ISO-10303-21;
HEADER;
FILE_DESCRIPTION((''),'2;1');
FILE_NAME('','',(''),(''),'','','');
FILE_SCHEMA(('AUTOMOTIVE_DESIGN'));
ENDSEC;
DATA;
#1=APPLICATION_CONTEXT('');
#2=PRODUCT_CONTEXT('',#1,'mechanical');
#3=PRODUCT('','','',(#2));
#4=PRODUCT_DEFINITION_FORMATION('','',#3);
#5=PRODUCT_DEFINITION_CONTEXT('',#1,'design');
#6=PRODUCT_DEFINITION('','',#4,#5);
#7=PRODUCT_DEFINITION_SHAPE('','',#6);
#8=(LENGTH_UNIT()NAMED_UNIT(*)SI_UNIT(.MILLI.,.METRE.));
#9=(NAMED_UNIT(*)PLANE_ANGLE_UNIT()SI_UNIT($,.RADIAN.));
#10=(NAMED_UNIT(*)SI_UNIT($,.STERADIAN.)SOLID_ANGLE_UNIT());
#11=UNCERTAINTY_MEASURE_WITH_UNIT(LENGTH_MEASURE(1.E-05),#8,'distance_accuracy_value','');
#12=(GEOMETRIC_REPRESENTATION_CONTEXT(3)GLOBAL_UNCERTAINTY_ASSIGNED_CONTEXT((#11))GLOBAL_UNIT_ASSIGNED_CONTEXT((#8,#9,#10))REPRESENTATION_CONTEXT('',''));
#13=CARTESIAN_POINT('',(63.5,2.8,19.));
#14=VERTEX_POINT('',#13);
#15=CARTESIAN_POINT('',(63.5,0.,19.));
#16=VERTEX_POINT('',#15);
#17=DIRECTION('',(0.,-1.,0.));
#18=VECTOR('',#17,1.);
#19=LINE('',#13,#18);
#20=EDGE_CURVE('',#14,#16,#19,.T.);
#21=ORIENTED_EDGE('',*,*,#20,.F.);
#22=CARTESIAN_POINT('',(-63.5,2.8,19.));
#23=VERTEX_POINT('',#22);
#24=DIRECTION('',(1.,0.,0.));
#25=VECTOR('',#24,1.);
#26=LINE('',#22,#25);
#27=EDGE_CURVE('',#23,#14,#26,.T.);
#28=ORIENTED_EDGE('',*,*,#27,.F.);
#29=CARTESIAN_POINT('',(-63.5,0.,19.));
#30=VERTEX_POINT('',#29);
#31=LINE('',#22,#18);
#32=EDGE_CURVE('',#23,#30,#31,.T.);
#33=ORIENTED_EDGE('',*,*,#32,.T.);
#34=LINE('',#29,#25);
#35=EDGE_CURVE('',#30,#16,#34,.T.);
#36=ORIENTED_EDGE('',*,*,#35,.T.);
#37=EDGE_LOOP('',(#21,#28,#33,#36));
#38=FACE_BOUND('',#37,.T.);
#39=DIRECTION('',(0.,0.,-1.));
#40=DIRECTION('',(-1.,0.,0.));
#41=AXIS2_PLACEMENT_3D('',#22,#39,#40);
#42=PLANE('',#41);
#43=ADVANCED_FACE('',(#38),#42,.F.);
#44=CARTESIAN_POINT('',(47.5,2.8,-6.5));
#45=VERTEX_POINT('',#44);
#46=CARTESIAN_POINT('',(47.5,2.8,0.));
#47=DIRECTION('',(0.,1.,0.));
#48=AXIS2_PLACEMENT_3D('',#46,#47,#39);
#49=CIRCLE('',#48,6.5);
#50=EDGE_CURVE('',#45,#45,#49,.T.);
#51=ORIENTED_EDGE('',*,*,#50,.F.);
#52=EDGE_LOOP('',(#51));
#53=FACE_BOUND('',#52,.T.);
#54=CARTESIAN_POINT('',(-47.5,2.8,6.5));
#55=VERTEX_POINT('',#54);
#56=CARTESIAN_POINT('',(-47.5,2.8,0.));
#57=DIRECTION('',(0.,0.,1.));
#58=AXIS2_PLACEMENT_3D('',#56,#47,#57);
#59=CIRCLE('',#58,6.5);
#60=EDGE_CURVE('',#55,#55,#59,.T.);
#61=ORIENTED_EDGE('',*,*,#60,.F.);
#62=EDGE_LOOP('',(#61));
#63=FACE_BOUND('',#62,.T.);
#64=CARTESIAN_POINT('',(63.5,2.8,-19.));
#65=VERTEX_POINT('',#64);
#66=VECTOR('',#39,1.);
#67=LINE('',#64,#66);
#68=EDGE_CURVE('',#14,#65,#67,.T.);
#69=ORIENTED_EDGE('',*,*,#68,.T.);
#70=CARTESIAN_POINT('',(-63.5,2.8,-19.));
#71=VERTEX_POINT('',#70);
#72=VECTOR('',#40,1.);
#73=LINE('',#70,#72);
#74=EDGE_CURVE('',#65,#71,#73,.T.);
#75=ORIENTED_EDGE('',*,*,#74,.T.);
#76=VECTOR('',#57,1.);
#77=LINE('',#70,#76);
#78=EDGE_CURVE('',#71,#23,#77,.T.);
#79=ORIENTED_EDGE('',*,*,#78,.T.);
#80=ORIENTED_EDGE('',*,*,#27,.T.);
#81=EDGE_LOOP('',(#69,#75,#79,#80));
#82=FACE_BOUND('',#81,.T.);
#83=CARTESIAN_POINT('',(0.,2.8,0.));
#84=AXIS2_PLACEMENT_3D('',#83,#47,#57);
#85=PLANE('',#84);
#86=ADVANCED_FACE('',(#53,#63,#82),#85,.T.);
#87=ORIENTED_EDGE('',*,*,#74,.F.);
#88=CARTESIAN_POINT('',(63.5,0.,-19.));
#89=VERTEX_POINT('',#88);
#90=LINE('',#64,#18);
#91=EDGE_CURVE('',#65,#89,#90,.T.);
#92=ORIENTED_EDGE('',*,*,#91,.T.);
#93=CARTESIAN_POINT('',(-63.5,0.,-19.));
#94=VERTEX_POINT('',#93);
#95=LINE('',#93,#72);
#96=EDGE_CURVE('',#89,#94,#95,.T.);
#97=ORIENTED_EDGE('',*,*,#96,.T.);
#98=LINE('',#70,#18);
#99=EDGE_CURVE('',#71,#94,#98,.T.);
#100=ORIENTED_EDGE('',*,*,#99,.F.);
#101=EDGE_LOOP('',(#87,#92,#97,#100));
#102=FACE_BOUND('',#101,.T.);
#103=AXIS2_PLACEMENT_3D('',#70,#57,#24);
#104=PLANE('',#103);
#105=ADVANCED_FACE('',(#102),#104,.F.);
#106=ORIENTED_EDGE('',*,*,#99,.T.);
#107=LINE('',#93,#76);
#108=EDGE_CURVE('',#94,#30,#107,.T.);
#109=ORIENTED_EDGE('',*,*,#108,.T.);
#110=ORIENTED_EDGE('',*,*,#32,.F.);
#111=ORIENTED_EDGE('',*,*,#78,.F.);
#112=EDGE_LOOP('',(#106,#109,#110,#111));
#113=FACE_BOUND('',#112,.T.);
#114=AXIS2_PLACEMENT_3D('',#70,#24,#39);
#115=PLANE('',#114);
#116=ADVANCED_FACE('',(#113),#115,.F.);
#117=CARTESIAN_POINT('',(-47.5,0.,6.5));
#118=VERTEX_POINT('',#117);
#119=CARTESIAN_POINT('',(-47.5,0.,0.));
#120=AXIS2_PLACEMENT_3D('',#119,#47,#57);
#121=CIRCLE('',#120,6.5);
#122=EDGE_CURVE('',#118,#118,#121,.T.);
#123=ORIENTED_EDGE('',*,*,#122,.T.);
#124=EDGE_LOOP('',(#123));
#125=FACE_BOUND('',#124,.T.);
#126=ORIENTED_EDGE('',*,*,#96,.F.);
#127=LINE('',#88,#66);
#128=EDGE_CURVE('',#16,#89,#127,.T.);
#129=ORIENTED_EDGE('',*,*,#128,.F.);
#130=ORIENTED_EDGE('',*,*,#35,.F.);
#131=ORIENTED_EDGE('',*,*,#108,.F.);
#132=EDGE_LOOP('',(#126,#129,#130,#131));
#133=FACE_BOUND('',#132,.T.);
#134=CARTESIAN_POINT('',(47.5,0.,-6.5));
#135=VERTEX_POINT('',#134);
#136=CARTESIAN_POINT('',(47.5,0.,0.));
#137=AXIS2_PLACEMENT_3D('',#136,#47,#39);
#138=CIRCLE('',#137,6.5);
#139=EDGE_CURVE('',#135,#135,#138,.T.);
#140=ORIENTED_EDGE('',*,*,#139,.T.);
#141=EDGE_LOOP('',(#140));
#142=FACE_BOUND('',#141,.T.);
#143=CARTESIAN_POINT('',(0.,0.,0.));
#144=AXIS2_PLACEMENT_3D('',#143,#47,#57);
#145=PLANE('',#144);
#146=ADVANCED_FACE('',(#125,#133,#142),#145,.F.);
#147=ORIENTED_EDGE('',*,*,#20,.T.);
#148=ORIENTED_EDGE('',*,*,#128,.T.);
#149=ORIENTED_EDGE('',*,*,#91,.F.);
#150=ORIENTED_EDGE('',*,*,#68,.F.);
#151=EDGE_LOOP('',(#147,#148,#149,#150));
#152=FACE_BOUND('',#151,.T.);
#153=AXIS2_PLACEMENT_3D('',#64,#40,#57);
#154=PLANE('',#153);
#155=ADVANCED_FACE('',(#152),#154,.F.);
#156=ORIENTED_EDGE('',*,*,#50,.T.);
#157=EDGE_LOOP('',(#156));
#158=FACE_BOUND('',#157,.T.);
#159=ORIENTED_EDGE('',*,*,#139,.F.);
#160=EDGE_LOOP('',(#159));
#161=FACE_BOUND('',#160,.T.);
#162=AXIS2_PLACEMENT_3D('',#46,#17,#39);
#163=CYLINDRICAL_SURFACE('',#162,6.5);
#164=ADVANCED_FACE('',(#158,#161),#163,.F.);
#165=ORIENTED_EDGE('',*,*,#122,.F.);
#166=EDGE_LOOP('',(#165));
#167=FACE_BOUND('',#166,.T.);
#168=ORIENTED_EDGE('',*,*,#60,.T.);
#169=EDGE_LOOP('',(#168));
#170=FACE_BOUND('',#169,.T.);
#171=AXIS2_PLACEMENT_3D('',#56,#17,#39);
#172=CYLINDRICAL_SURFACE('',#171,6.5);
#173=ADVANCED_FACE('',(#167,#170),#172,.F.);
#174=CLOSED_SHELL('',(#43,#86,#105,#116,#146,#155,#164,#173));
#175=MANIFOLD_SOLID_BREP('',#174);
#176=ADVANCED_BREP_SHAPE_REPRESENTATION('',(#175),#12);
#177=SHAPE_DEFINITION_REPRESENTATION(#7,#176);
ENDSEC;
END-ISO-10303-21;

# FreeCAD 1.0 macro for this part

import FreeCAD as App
import Part
import Sketcher

V = App.Vector
Q = App.Units.Quantity

doc = App.newDocument("Part")
body = doc.addObject("PartDesign::Body", "Body")

sketch1 = body.newObject("Sketcher::SketchObject", "Sketch")
sketch1.AttachmentSupport = (doc.getObject("XZ_Plane"), [""])
sketch1.MapMode = "FlatFace"
sketch1.addGeometry(Part.LineSegment(V(-64, -19, 0), V(-64, 19, 0)), False)
sketch1.addGeometry(Part.LineSegment(V(-64, 19, 0), V(64, 19, 0)), False)
sketch1.addGeometry(Part.LineSegment(V(64, 19, 0), V(64, -19, 0)), False)
sketch1.addGeometry(Part.LineSegment(V(64, -19, 0), V(-64, -19, 0)), False)
sketch1.addGeometry(Part.Circle(V(-48, 0, 0), V(0, 0, 1), 6), False)
sketch1.addGeometry(Part.Circle(V(48, 0, 0), V(0, 0, 1), 6), False)
sketch1.addConstraint(Sketcher.Constraint("Coincident", 0, 2, 1, 1))
sketch1.addConstraint(Sketcher.Constraint("Coincident", 1, 2, 2, 1))
sketch1.addConstraint(Sketcher.Constraint("Coincident", 2, 2, 3, 1))
sketch1.addConstraint(Sketcher.Constraint("Coincident", 3, 2, 0, 1))
sketch1.addConstraint(Sketcher.Constraint("Vertical", 0))
sketch1.addConstraint(Sketcher.Constraint("Horizontal", 1))
sketch1.addConstraint(Sketcher.Constraint("Vertical", 2))
sketch1.addConstraint(Sketcher.Constraint("Horizontal", 3))
sketch1.addConstraint(Sketcher.Constraint("Equal", 4, 5))
sketch1.addConstraint(Sketcher.Constraint("Symmetric", 4, 3, 5, 3, -1, 1))
sketch1.addConstraint(Sketcher.Constraint("Symmetric", 0, 2, 2, 2, -1, 1))
sketch1.addConstraint(Sketcher.Constraint("PointOnObject", 4, 3, -1))
sketch1.addConstraint(Sketcher.Constraint("Diameter", 4, Q("13 mm")))
sketch1.addConstraint(Sketcher.Constraint("DistanceX", 1, 1, 1, 2, Q("127 mm")))
sketch1.addConstraint(Sketcher.Constraint("DistanceY", 0, 1, 0, 2, Q("38 mm")))
sketch1.addConstraint(Sketcher.Constraint("DistanceX", 4, 3, 5, 3, Q("95 mm")))
pad1 = body.newObject("PartDesign::Pad", "Pad")
pad1.Profile = sketch1
pad1.Length = 2.8
pad1.Reversed = True

doc.recompute()
